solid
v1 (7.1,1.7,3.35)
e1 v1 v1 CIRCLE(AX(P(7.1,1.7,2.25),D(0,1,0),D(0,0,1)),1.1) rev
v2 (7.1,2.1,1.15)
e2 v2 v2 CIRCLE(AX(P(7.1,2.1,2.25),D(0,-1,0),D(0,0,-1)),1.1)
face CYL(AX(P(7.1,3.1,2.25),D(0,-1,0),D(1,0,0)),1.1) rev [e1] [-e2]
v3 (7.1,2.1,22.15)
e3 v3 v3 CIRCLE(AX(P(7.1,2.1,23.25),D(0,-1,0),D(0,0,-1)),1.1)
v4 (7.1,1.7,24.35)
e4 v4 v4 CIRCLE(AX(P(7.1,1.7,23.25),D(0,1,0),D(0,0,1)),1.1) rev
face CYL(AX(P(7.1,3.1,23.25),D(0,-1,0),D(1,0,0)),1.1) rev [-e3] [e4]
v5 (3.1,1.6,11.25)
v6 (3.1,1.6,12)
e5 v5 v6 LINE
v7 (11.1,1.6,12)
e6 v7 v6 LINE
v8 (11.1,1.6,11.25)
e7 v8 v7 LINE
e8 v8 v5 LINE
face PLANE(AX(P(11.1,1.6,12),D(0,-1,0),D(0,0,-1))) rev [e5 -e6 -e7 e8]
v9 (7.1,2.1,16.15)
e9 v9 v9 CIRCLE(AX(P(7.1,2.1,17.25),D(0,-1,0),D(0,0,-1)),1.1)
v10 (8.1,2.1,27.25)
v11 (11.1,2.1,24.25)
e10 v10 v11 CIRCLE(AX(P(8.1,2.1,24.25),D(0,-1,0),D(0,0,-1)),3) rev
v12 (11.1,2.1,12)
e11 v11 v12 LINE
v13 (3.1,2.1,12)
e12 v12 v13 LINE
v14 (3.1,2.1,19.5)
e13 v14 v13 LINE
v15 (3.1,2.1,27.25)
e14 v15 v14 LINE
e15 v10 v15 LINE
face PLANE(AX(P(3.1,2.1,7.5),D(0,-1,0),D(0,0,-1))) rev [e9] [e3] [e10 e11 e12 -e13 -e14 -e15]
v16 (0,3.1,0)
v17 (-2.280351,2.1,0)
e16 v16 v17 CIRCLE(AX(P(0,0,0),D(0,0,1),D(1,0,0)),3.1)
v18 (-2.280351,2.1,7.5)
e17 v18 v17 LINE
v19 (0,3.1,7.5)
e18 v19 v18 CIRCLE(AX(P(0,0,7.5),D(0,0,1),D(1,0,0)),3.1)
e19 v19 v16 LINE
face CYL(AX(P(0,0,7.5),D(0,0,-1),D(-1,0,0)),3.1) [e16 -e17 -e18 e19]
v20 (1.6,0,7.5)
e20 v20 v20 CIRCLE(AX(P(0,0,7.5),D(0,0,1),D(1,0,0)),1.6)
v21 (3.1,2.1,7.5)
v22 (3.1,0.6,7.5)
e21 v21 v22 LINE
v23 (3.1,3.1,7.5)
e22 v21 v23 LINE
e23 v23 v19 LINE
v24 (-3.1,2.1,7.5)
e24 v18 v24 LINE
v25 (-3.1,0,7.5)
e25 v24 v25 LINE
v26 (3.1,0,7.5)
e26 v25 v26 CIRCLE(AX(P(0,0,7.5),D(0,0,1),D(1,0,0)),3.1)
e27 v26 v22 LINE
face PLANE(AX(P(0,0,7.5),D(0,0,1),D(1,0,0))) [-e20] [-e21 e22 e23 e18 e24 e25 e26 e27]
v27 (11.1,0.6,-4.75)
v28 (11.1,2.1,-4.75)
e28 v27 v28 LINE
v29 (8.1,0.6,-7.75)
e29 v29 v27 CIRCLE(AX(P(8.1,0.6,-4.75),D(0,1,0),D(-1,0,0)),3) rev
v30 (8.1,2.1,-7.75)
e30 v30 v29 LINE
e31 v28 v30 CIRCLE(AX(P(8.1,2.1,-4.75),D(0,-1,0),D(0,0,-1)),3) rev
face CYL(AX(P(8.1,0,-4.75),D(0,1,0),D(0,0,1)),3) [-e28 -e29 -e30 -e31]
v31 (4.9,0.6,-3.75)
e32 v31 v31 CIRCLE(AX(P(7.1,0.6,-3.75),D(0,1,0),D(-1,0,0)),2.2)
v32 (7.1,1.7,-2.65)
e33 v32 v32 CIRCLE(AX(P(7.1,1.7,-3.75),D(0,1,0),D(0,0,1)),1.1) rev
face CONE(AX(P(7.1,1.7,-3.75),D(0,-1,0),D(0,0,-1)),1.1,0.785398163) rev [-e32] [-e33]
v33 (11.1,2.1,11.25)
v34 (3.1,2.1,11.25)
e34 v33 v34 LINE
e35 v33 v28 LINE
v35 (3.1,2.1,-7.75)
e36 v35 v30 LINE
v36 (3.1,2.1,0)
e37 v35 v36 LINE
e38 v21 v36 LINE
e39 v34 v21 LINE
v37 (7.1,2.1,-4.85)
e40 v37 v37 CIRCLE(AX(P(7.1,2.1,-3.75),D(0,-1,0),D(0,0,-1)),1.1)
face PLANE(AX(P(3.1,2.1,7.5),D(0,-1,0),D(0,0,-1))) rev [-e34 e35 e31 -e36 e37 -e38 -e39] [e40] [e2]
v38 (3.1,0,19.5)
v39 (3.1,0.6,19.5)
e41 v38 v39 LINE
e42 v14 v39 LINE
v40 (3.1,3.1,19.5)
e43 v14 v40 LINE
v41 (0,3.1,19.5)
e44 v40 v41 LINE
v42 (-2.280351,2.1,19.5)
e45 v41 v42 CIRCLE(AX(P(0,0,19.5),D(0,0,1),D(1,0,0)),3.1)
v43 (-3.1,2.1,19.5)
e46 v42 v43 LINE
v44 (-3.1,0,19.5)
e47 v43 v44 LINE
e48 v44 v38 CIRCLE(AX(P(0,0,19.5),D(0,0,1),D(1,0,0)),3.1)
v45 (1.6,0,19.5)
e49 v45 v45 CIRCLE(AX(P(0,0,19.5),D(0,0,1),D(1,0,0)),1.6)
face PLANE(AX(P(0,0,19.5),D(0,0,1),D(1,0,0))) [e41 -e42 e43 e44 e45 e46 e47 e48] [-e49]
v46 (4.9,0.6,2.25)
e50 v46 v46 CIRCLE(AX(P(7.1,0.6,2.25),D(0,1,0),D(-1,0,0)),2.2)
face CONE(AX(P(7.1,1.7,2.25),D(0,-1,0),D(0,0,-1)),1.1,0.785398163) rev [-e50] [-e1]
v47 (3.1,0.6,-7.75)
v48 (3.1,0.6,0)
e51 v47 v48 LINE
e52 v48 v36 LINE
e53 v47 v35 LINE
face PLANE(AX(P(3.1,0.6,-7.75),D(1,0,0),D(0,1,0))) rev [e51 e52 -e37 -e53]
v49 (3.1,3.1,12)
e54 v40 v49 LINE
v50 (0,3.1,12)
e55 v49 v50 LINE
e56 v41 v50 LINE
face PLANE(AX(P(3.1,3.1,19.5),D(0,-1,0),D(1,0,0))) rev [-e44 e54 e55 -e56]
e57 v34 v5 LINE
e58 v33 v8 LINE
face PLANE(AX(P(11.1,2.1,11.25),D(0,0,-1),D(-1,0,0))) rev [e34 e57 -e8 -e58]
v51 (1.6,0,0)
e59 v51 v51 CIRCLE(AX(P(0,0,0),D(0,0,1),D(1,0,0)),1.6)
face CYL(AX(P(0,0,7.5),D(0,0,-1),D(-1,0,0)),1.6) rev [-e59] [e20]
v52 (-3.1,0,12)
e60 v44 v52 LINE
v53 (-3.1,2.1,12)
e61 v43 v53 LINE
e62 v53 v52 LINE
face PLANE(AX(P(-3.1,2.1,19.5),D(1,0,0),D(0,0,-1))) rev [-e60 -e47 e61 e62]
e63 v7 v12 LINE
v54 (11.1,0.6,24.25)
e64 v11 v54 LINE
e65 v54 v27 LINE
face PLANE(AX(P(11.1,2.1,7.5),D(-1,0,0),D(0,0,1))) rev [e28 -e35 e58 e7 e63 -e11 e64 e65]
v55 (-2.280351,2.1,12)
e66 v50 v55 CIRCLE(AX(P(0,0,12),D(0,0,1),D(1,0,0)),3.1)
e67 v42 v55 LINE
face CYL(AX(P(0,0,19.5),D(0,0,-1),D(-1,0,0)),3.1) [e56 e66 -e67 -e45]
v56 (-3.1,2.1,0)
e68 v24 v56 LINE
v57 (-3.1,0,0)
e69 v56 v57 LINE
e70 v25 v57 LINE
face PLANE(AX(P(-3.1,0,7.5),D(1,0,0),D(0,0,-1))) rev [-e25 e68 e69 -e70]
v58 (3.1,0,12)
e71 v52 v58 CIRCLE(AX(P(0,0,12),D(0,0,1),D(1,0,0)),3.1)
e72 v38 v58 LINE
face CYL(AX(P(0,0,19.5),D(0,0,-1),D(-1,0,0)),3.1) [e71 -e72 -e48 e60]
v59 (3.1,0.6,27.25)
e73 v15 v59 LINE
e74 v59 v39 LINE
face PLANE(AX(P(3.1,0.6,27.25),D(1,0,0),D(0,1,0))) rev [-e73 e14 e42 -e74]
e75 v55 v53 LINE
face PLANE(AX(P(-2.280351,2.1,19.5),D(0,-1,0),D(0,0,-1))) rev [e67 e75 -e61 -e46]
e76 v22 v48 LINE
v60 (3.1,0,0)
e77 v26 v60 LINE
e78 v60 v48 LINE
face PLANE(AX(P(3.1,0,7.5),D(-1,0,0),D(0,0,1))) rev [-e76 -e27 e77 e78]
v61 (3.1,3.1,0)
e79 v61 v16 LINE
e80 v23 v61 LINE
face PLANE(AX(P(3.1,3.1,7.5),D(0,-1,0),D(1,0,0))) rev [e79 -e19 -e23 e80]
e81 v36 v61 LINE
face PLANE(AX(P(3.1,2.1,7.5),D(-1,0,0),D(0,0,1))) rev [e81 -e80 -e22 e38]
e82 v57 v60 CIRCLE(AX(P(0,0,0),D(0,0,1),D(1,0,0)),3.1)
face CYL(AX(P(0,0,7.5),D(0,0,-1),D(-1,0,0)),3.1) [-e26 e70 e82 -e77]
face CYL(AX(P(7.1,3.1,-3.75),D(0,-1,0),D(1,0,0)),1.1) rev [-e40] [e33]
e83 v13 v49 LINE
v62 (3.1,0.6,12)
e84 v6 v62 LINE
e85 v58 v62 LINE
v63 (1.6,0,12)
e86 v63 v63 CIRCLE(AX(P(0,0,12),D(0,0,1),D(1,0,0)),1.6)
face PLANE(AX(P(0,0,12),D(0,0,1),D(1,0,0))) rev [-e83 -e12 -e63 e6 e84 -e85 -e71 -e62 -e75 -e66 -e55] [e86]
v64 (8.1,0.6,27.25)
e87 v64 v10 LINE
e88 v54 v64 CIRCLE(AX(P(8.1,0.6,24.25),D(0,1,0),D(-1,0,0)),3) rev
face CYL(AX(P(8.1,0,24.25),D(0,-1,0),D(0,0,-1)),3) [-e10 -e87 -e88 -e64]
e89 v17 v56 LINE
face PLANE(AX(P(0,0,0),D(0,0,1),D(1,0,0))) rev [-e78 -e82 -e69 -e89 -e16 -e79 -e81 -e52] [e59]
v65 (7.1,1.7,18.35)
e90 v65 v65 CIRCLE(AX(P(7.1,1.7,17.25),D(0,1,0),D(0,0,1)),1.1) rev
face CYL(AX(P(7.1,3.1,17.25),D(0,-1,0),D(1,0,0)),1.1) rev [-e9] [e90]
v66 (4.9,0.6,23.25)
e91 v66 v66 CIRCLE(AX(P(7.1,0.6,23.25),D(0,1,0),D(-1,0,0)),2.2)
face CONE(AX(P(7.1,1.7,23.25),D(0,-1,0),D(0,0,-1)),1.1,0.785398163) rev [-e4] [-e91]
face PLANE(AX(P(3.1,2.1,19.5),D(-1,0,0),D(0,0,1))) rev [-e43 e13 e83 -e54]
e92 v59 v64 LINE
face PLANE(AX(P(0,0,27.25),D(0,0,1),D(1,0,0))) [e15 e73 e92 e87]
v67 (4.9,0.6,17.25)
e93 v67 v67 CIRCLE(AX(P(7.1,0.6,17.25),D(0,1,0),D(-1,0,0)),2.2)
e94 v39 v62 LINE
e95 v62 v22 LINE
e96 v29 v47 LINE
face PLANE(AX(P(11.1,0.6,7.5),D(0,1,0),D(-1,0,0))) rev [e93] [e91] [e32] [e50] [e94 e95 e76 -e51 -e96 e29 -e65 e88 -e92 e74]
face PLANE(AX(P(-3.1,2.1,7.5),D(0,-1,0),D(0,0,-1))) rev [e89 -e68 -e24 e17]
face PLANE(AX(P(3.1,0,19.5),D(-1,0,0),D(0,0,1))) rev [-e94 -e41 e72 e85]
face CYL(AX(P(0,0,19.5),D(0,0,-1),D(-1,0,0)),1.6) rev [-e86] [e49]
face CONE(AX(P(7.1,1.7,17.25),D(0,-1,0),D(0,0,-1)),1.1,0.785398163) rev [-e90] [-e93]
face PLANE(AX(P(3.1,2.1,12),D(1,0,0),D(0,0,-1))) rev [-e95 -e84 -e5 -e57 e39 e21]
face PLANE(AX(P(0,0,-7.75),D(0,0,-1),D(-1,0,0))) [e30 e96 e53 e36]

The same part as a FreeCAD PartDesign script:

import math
import FreeCAD as App
import Part
import Sketcher
from FreeCAD import Vector


def edges_at(feature, points):
    """Names of the edges that pass closest to the given points."""
    edges = feature.Shape.Edges
    near = lambda p: min(range(len(edges)), key=lambda i: edges[i].distToShape(Part.Vertex(*p))[0])
    return sorted({f"Edge{near(p) + 1}" for p in points})

doc = App.newDocument("Part")
body = doc.addObject("PartDesign::Body", "Body")

# Sketch on XY plane
sketch1 = body.newObject("Sketcher::SketchObject", "Sketch")
sketch1.AttachmentSupport = (doc.getObject("XY_Plane"), [""])
sketch1.MapMode = "FlatFace"
sketch1.addGeometry(Part.LineSegment(Vector(11.1, 2.1, 0), Vector(3.1, 2.1, 0)), False)
sketch1.addGeometry(Part.LineSegment(Vector(3.1, 2.1, 0), Vector(3.1, 3.1, 0)), False)
sketch1.addGeometry(Part.LineSegment(Vector(3.1, 3.1, 0), Vector(0, 3.1, 0)), False)
sketch1.addGeometry(Part.ArcOfCircle(Part.Circle(Vector(0, 0, 0), Vector(0, 0, 1), 3.1), math.radians(90), math.radians(137.35769)), False)
sketch1.addGeometry(Part.LineSegment(Vector(-2.280351, 2.1, 0), Vector(-3.1, 2.1, 0)), False)
sketch1.addGeometry(Part.LineSegment(Vector(-3.1, 2.1, 0), Vector(-3.1, 0, 0)), False)
sketch1.addGeometry(Part.ArcOfCircle(Part.Circle(Vector(0, 0, 0), Vector(0, 0, 1), 3.1), math.radians(180), math.radians(360)), False)
sketch1.addGeometry(Part.LineSegment(Vector(3.1, 0, 0), Vector(3.1, 0.6, 0)), False)
sketch1.addGeometry(Part.LineSegment(Vector(3.1, 0.6, 0), Vector(11.1, 0.6, 0)), False)
sketch1.addGeometry(Part.LineSegment(Vector(11.1, 0.6, 0), Vector(11.1, 2.1, 0)), False)
sketch1.addGeometry(Part.Circle(Vector(0, 0, 0), Vector(0, 0, 1), 1.6), False)
sketch1.addConstraint(Sketcher.Constraint("Coincident", 0, 2, 1, 1))
sketch1.addConstraint(Sketcher.Constraint("Coincident", 1, 2, 2, 1))
sketch1.addConstraint(Sketcher.Constraint("Tangent", 2, 2, 3, 1))
sketch1.addConstraint(Sketcher.Constraint("Coincident", 3, 2, 4, 1))
sketch1.addConstraint(Sketcher.Constraint("Coincident", 4, 2, 5, 1))
sketch1.addConstraint(Sketcher.Constraint("Tangent", 5, 2, 6, 1))
sketch1.addConstraint(Sketcher.Constraint("Tangent", 6, 2, 7, 1))
sketch1.addConstraint(Sketcher.Constraint("Coincident", 7, 2, 8, 1))
sketch1.addConstraint(Sketcher.Constraint("Coincident", 8, 2, 9, 1))
sketch1.addConstraint(Sketcher.Constraint("Coincident", 9, 2, 0, 1))
sketch1.addConstraint(Sketcher.Constraint("Horizontal", 0))
sketch1.addConstraint(Sketcher.Constraint("Vertical", 1))
sketch1.addConstraint(Sketcher.Constraint("Horizontal", 2))
sketch1.addConstraint(Sketcher.Constraint("Horizontal", 4))
sketch1.addConstraint(Sketcher.Constraint("Vertical", 5))
sketch1.addConstraint(Sketcher.Constraint("Vertical", 7))
sketch1.addConstraint(Sketcher.Constraint("Horizontal", 8))
sketch1.addConstraint(Sketcher.Constraint("Vertical", 9))
sketch1.addConstraint(Sketcher.Constraint("Coincident", 3, 3, -1, 1))
sketch1.addConstraint(Sketcher.Constraint("Coincident", 6, 3, -1, 1))
sketch1.addConstraint(Sketcher.Constraint("Coincident", 10, 3, -1, 1))
sketch1.addConstraint(Sketcher.Constraint("Equal", 3, 6))
sketch1.addConstraint(Sketcher.Constraint("Symmetric", 0, 2, 4, 2, -2))
sketch1.addConstraint(Sketcher.Constraint("Diameter", 10, 3.2))
sketch1.addConstraint(Sketcher.Constraint("Radius", 3, 3.1))
sketch1.addConstraint(Sketcher.Constraint("DistanceX", 0, 2, 0, 1, 8.0))
sketch1.addConstraint(Sketcher.Constraint("DistanceY", 1, 1, 1, 2, 1.0))
sketch1.addConstraint(Sketcher.Constraint("DistanceY", 7, 1, 7, 2, 0.6))
pad1 = body.newObject("PartDesign::Pad", "Pad")
pad1.Profile = sketch1
pad1.Length = 7.5

# Sketch on XY plane
sketch2 = body.newObject("Sketcher::SketchObject", "Sketch001")
sketch2.AttachmentSupport = (doc.getObject("XY_Plane"), [""])
sketch2.MapMode = "FlatFace"
sketch2.AttachmentOffset = App.Placement(Vector(0, 0, 7.5), App.Rotation())
sketch2.addGeometry(Part.LineSegment(Vector(3.1, 2.1, 0), Vector(3.1, 0.6, 0)), False)
sketch2.addGeometry(Part.LineSegment(Vector(3.1, 0.6, 0), Vector(11.1, 0.6, 0)), False)
sketch2.addGeometry(Part.LineSegment(Vector(11.1, 0.6, 0), Vector(11.1, 2.1, 0)), False)
sketch2.addGeometry(Part.LineSegment(Vector(11.1, 2.1, 0), Vector(3.1, 2.1, 0)), False)
sketch2.addConstraint(Sketcher.Constraint("Coincident", 0, 2, 1, 1))
sketch2.addConstraint(Sketcher.Constraint("Coincident", 1, 2, 2, 1))
sketch2.addConstraint(Sketcher.Constraint("Coincident", 2, 2, 3, 1))
sketch2.addConstraint(Sketcher.Constraint("Coincident", 3, 2, 0, 1))
sketch2.addConstraint(Sketcher.Constraint("Vertical", 0))
sketch2.addConstraint(Sketcher.Constraint("Horizontal", 1))
sketch2.addConstraint(Sketcher.Constraint("Vertical", 2))
sketch2.addConstraint(Sketcher.Constraint("Horizontal", 3))
sketch2.addConstraint(Sketcher.Constraint("DistanceX", 1, 1, 1, 2, 8.0))
sketch2.addConstraint(Sketcher.Constraint("DistanceY", 0, 2, 0, 1, 1.5))
sketch2.addConstraint(Sketcher.Constraint("DistanceX", -1, 1, 0, 2, 3.1))
sketch2.addConstraint(Sketcher.Constraint("DistanceY", -1, 1, 0, 2, 0.6))
pad2 = body.newObject("PartDesign::Pad", "Pad001")
pad2.Profile = sketch2
pad2.Length = 4.5

# Sketch on XY plane
sketch3 = body.newObject("Sketcher::SketchObject", "Sketch002")
sketch3.AttachmentSupport = (doc.getObject("XY_Plane"), [""])
sketch3.MapMode = "FlatFace"
sketch3.AttachmentOffset = App.Placement(Vector(0, 0, 12), App.Rotation())
sketch3.addGeometry(Part.LineSegment(Vector(11.1, 0.6, 0), Vector(11.1, 2.1, 0)), False)
sketch3.addGeometry(Part.LineSegment(Vector(11.1, 2.1, 0), Vector(3.1, 2.1, 0)), False)
sketch3.addGeometry(Part.LineSegment(Vector(3.1, 2.1, 0), Vector(3.1, 3.1, 0)), False)
sketch3.addGeometry(Part.LineSegment(Vector(3.1, 3.1, 0), Vector(0, 3.1, 0)), False)
sketch3.addGeometry(Part.ArcOfCircle(Part.Circle(Vector(0, 0, 0), Vector(0, 0, 1), 3.1), math.radians(90), math.radians(137.35769)), False)
sketch3.addGeometry(Part.LineSegment(Vector(-2.280351, 2.1, 0), Vector(-3.1, 2.1, 0)), False)
sketch3.addGeometry(Part.LineSegment(Vector(-3.1, 2.1, 0), Vector(-3.1, 0, 0)), False)
sketch3.addGeometry(Part.ArcOfCircle(Part.Circle(Vector(0, 0, 0), Vector(0, 0, 1), 3.1), math.radians(180), math.radians(360)), False)
sketch3.addGeometry(Part.LineSegment(Vector(3.1, 0, 0), Vector(3.1, 0.6, 0)), False)
sketch3.addGeometry(Part.LineSegment(Vector(3.1, 0.6, 0), Vector(11.1, 0.6, 0)), False)
sketch3.addGeometry(Part.Circle(Vector(0, 0, 0), Vector(0, 0, 1), 1.6), False)
sketch3.addConstraint(Sketcher.Constraint("Coincident", 0, 2, 1, 1))
sketch3.addConstraint(Sketcher.Constraint("Coincident", 1, 2, 2, 1))
sketch3.addConstraint(Sketcher.Constraint("Coincident", 2, 2, 3, 1))
sketch3.addConstraint(Sketcher.Constraint("Tangent", 3, 2, 4, 1))
sketch3.addConstraint(Sketcher.Constraint("Coincident", 4, 2, 5, 1))
sketch3.addConstraint(Sketcher.Constraint("Coincident", 5, 2, 6, 1))
sketch3.addConstraint(Sketcher.Constraint("Tangent", 6, 2, 7, 1))
sketch3.addConstraint(Sketcher.Constraint("Tangent", 7, 2, 8, 1))
sketch3.addConstraint(Sketcher.Constraint("Coincident", 8, 2, 9, 1))
sketch3.addConstraint(Sketcher.Constraint("Coincident", 9, 2, 0, 1))
sketch3.addConstraint(Sketcher.Constraint("Vertical", 0))
sketch3.addConstraint(Sketcher.Constraint("Horizontal", 1))
sketch3.addConstraint(Sketcher.Constraint("Vertical", 2))
sketch3.addConstraint(Sketcher.Constraint("Horizontal", 3))
sketch3.addConstraint(Sketcher.Constraint("Horizontal", 5))
sketch3.addConstraint(Sketcher.Constraint("Vertical", 6))
sketch3.addConstraint(Sketcher.Constraint("Vertical", 8))
sketch3.addConstraint(Sketcher.Constraint("Horizontal", 9))
sketch3.addConstraint(Sketcher.Constraint("Coincident", 4, 3, -1, 1))
sketch3.addConstraint(Sketcher.Constraint("Coincident", 7, 3, -1, 1))
sketch3.addConstraint(Sketcher.Constraint("Coincident", 10, 3, -1, 1))
sketch3.addConstraint(Sketcher.Constraint("Equal", 4, 7))
sketch3.addConstraint(Sketcher.Constraint("Symmetric", 1, 2, 5, 2, -2))
sketch3.addConstraint(Sketcher.Constraint("Diameter", 10, 3.2))
sketch3.addConstraint(Sketcher.Constraint("Radius", 4, 3.1))
sketch3.addConstraint(Sketcher.Constraint("DistanceX", 1, 2, 1, 1, 8.0))
sketch3.addConstraint(Sketcher.Constraint("DistanceY", 2, 1, 2, 2, 1.0))
sketch3.addConstraint(Sketcher.Constraint("DistanceY", 0, 1, 0, 2, 1.5))
pad3 = body.newObject("PartDesign::Pad", "Pad002")
pad3.Profile = sketch3
pad3.Length = 7.5

# Sketch on XY plane
sketch4 = body.newObject("Sketcher::SketchObject", "Sketch003")
sketch4.AttachmentSupport = (doc.getObject("XY_Plane"), [""])
sketch4.MapMode = "FlatFace"
sketch4.AttachmentOffset = App.Placement(Vector(0, 0, 19.5), App.Rotation())
sketch4.addGeometry(Part.LineSegment(Vector(3.1, 2.1, 0), Vector(3.1, 0.6, 0)), False)
sketch4.addGeometry(Part.LineSegment(Vector(3.1, 0.6, 0), Vector(11.1, 0.6, 0)), False)
sketch4.addGeometry(Part.LineSegment(Vector(11.1, 0.6, 0), Vector(11.1, 2.1, 0)), False)
sketch4.addGeometry(Part.LineSegment(Vector(11.1, 2.1, 0), Vector(3.1, 2.1, 0)), False)
sketch4.addConstraint(Sketcher.Constraint("Coincident", 0, 2, 1, 1))
sketch4.addConstraint(Sketcher.Constraint("Coincident", 1, 2, 2, 1))
sketch4.addConstraint(Sketcher.Constraint("Coincident", 2, 2, 3, 1))
sketch4.addConstraint(Sketcher.Constraint("Coincident", 3, 2, 0, 1))
sketch4.addConstraint(Sketcher.Constraint("Vertical", 0))
sketch4.addConstraint(Sketcher.Constraint("Horizontal", 1))
sketch4.addConstraint(Sketcher.Constraint("Vertical", 2))
sketch4.addConstraint(Sketcher.Constraint("Horizontal", 3))
sketch4.addConstraint(Sketcher.Constraint("DistanceX", 1, 1, 1, 2, 8.0))
sketch4.addConstraint(Sketcher.Constraint("DistanceY", 0, 2, 0, 1, 1.5))
sketch4.addConstraint(Sketcher.Constraint("DistanceX", -1, 1, 0, 2, 3.1))
sketch4.addConstraint(Sketcher.Constraint("DistanceY", -1, 1, 0, 2, 0.6))
pad4 = body.newObject("PartDesign::Pad", "Pad003")
pad4.Profile = sketch4
pad4.Length = 7.75

# Sketch on XY plane
sketch5 = body.newObject("Sketcher::SketchObject", "Sketch004")
sketch5.AttachmentSupport = (doc.getObject("XY_Plane"), [""])
sketch5.MapMode = "FlatFace"
sketch5.addGeometry(Part.LineSegment(Vector(11.1, 2.1, 0), Vector(11.1, 0.6, 0)), False)
sketch5.addGeometry(Part.LineSegment(Vector(11.1, 0.6, 0), Vector(3.1, 0.6, 0)), False)
sketch5.addGeometry(Part.LineSegment(Vector(3.1, 0.6, 0), Vector(3.1, 2.1, 0)), False)
sketch5.addGeometry(Part.LineSegment(Vector(3.1, 2.1, 0), Vector(11.1, 2.1, 0)), False)
sketch5.addConstraint(Sketcher.Constraint("Coincident", 0, 2, 1, 1))
sketch5.addConstraint(Sketcher.Constraint("Coincident", 1, 2, 2, 1))
sketch5.addConstraint(Sketcher.Constraint("Coincident", 2, 2, 3, 1))
sketch5.addConstraint(Sketcher.Constraint("Coincident", 3, 2, 0, 1))
sketch5.addConstraint(Sketcher.Constraint("Vertical", 0))
sketch5.addConstraint(Sketcher.Constraint("Horizontal", 1))
sketch5.addConstraint(Sketcher.Constraint("Vertical", 2))
sketch5.addConstraint(Sketcher.Constraint("Horizontal", 3))
sketch5.addConstraint(Sketcher.Constraint("DistanceX", 1, 2, 1, 1, 8.0))
sketch5.addConstraint(Sketcher.Constraint("DistanceY", 0, 2, 0, 1, 1.5))
sketch5.addConstraint(Sketcher.Constraint("DistanceX", -1, 1, 0, 2, 11.1))
sketch5.addConstraint(Sketcher.Constraint("DistanceY", -1, 1, 0, 2, 0.6))
pad5 = body.newObject("PartDesign::Pad", "Pad004")
pad5.Profile = sketch5
pad5.Length = 7.75
pad5.Reversed = True

# Sketch on YZ plane
sketch6 = body.newObject("Sketcher::SketchObject", "Sketch005")
sketch6.AttachmentSupport = (doc.getObject("YZ_Plane"), [""])
sketch6.MapMode = "FlatFace"
sketch6.AttachmentOffset = App.Placement(Vector(0, 0, 3.1), App.Rotation())
sketch6.addGeometry(Part.LineSegment(Vector(2.1, 11.25, 0), Vector(1.6, 11.25, 0)), False)
sketch6.addGeometry(Part.LineSegment(Vector(1.6, 11.25, 0), Vector(1.6, 12, 0)), False)
sketch6.addGeometry(Part.LineSegment(Vector(1.6, 12, 0), Vector(2.1, 12, 0)), False)
sketch6.addGeometry(Part.LineSegment(Vector(2.1, 12, 0), Vector(2.1, 11.25, 0)), False)
sketch6.addConstraint(Sketcher.Constraint("Coincident", 0, 2, 1, 1))
sketch6.addConstraint(Sketcher.Constraint("Coincident", 1, 2, 2, 1))
sketch6.addConstraint(Sketcher.Constraint("Coincident", 2, 2, 3, 1))
sketch6.addConstraint(Sketcher.Constraint("Coincident", 3, 2, 0, 1))
sketch6.addConstraint(Sketcher.Constraint("Horizontal", 0))
sketch6.addConstraint(Sketcher.Constraint("Vertical", 1))
sketch6.addConstraint(Sketcher.Constraint("Horizontal", 2))
sketch6.addConstraint(Sketcher.Constraint("Vertical", 3))
sketch6.addConstraint(Sketcher.Constraint("DistanceX", 0, 2, 0, 1, 0.5))
sketch6.addConstraint(Sketcher.Constraint("DistanceY", -1, 1, 1, 2, 12.0))
sketch6.addConstraint(Sketcher.Constraint("DistanceY", 1, 1, 1, 2, 0.75))
sketch6.addConstraint(Sketcher.Constraint("DistanceX", -1, 1, 0, 2, 1.6))
pocket1 = body.newObject("PartDesign::Pocket", "Pocket")
pocket1.Profile = sketch6
pocket1.Type = "ThroughAll"
pocket1.Reversed = True

# Sketch on XZ plane
sketch7 = body.newObject("Sketcher::SketchObject", "Sketch006")
sketch7.AttachmentSupport = (doc.getObject("XZ_Plane"), [""])
sketch7.MapMode = "FlatFace"
sketch7.AttachmentOffset = App.Placement(Vector(0, 0, -0.6), App.Rotation())
sketch7.addGeometry(Part.Circle(Vector(7.1, 23.25, 0), Vector(0, 0, 1), 1.1), False)
sketch7.addGeometry(Part.Circle(Vector(7.1, 17.25, 0), Vector(0, 0, 1), 1.1), False)
sketch7.addGeometry(Part.Circle(Vector(7.1, 2.25, 0), Vector(0, 0, 1), 1.1), False)
sketch7.addGeometry(Part.Circle(Vector(7.1, -3.75, 0), Vector(0, 0, 1), 1.1), False)
sketch7.addConstraint(Sketcher.Constraint("Equal", 0, 1))
sketch7.addConstraint(Sketcher.Constraint("Equal", 1, 2))
sketch7.addConstraint(Sketcher.Constraint("Equal", 2, 3))
sketch7.addConstraint(Sketcher.Constraint("Vertical", 0, 3, 1, 3))
sketch7.addConstraint(Sketcher.Constraint("Vertical", 1, 3, 2, 3))
sketch7.addConstraint(Sketcher.Constraint("Vertical", 2, 3, 3, 3))
sketch7.addConstraint(Sketcher.Constraint("Diameter", 0, 2.2))
sketch7.addConstraint(Sketcher.Constraint("DistanceY", 1, 3, 0, 3, 6.0))
sketch7.addConstraint(Sketcher.Constraint("DistanceY", 2, 3, 1, 3, 15.0))
sketch7.addConstraint(Sketcher.Constraint("DistanceY", 3, 3, 2, 3, 6.0))
sketch7.addConstraint(Sketcher.Constraint("DistanceX", -1, 1, 0, 3, 7.1))
sketch7.addConstraint(Sketcher.Constraint("DistanceY", -1, 1, 0, 3, 23.25))
pocket2 = body.newObject("PartDesign::Pocket", "Pocket001")
pocket2.Profile = sketch7
pocket2.Type = "ThroughAll"
doc.recompute()

chamfer = body.newObject("PartDesign::Chamfer", "Chamfer")
chamfer.Base = (pocket2, edges_at(pocket2, [
    (6, 0.6, 23.25),
    (6, 0.6, 17.25),
    (6, 0.6, 2.25),
    (6, 0.6, -3.75),
]))
chamfer.Size = 1.1
doc.recompute()

fillet = body.newObject("PartDesign::Fillet", "Fillet")
fillet.Base = (chamfer, edges_at(chamfer, [(11.1, 1.35, 27.25), (11.1, 1.35, -7.75)]))
fillet.Radius = 3

doc.recompute()
